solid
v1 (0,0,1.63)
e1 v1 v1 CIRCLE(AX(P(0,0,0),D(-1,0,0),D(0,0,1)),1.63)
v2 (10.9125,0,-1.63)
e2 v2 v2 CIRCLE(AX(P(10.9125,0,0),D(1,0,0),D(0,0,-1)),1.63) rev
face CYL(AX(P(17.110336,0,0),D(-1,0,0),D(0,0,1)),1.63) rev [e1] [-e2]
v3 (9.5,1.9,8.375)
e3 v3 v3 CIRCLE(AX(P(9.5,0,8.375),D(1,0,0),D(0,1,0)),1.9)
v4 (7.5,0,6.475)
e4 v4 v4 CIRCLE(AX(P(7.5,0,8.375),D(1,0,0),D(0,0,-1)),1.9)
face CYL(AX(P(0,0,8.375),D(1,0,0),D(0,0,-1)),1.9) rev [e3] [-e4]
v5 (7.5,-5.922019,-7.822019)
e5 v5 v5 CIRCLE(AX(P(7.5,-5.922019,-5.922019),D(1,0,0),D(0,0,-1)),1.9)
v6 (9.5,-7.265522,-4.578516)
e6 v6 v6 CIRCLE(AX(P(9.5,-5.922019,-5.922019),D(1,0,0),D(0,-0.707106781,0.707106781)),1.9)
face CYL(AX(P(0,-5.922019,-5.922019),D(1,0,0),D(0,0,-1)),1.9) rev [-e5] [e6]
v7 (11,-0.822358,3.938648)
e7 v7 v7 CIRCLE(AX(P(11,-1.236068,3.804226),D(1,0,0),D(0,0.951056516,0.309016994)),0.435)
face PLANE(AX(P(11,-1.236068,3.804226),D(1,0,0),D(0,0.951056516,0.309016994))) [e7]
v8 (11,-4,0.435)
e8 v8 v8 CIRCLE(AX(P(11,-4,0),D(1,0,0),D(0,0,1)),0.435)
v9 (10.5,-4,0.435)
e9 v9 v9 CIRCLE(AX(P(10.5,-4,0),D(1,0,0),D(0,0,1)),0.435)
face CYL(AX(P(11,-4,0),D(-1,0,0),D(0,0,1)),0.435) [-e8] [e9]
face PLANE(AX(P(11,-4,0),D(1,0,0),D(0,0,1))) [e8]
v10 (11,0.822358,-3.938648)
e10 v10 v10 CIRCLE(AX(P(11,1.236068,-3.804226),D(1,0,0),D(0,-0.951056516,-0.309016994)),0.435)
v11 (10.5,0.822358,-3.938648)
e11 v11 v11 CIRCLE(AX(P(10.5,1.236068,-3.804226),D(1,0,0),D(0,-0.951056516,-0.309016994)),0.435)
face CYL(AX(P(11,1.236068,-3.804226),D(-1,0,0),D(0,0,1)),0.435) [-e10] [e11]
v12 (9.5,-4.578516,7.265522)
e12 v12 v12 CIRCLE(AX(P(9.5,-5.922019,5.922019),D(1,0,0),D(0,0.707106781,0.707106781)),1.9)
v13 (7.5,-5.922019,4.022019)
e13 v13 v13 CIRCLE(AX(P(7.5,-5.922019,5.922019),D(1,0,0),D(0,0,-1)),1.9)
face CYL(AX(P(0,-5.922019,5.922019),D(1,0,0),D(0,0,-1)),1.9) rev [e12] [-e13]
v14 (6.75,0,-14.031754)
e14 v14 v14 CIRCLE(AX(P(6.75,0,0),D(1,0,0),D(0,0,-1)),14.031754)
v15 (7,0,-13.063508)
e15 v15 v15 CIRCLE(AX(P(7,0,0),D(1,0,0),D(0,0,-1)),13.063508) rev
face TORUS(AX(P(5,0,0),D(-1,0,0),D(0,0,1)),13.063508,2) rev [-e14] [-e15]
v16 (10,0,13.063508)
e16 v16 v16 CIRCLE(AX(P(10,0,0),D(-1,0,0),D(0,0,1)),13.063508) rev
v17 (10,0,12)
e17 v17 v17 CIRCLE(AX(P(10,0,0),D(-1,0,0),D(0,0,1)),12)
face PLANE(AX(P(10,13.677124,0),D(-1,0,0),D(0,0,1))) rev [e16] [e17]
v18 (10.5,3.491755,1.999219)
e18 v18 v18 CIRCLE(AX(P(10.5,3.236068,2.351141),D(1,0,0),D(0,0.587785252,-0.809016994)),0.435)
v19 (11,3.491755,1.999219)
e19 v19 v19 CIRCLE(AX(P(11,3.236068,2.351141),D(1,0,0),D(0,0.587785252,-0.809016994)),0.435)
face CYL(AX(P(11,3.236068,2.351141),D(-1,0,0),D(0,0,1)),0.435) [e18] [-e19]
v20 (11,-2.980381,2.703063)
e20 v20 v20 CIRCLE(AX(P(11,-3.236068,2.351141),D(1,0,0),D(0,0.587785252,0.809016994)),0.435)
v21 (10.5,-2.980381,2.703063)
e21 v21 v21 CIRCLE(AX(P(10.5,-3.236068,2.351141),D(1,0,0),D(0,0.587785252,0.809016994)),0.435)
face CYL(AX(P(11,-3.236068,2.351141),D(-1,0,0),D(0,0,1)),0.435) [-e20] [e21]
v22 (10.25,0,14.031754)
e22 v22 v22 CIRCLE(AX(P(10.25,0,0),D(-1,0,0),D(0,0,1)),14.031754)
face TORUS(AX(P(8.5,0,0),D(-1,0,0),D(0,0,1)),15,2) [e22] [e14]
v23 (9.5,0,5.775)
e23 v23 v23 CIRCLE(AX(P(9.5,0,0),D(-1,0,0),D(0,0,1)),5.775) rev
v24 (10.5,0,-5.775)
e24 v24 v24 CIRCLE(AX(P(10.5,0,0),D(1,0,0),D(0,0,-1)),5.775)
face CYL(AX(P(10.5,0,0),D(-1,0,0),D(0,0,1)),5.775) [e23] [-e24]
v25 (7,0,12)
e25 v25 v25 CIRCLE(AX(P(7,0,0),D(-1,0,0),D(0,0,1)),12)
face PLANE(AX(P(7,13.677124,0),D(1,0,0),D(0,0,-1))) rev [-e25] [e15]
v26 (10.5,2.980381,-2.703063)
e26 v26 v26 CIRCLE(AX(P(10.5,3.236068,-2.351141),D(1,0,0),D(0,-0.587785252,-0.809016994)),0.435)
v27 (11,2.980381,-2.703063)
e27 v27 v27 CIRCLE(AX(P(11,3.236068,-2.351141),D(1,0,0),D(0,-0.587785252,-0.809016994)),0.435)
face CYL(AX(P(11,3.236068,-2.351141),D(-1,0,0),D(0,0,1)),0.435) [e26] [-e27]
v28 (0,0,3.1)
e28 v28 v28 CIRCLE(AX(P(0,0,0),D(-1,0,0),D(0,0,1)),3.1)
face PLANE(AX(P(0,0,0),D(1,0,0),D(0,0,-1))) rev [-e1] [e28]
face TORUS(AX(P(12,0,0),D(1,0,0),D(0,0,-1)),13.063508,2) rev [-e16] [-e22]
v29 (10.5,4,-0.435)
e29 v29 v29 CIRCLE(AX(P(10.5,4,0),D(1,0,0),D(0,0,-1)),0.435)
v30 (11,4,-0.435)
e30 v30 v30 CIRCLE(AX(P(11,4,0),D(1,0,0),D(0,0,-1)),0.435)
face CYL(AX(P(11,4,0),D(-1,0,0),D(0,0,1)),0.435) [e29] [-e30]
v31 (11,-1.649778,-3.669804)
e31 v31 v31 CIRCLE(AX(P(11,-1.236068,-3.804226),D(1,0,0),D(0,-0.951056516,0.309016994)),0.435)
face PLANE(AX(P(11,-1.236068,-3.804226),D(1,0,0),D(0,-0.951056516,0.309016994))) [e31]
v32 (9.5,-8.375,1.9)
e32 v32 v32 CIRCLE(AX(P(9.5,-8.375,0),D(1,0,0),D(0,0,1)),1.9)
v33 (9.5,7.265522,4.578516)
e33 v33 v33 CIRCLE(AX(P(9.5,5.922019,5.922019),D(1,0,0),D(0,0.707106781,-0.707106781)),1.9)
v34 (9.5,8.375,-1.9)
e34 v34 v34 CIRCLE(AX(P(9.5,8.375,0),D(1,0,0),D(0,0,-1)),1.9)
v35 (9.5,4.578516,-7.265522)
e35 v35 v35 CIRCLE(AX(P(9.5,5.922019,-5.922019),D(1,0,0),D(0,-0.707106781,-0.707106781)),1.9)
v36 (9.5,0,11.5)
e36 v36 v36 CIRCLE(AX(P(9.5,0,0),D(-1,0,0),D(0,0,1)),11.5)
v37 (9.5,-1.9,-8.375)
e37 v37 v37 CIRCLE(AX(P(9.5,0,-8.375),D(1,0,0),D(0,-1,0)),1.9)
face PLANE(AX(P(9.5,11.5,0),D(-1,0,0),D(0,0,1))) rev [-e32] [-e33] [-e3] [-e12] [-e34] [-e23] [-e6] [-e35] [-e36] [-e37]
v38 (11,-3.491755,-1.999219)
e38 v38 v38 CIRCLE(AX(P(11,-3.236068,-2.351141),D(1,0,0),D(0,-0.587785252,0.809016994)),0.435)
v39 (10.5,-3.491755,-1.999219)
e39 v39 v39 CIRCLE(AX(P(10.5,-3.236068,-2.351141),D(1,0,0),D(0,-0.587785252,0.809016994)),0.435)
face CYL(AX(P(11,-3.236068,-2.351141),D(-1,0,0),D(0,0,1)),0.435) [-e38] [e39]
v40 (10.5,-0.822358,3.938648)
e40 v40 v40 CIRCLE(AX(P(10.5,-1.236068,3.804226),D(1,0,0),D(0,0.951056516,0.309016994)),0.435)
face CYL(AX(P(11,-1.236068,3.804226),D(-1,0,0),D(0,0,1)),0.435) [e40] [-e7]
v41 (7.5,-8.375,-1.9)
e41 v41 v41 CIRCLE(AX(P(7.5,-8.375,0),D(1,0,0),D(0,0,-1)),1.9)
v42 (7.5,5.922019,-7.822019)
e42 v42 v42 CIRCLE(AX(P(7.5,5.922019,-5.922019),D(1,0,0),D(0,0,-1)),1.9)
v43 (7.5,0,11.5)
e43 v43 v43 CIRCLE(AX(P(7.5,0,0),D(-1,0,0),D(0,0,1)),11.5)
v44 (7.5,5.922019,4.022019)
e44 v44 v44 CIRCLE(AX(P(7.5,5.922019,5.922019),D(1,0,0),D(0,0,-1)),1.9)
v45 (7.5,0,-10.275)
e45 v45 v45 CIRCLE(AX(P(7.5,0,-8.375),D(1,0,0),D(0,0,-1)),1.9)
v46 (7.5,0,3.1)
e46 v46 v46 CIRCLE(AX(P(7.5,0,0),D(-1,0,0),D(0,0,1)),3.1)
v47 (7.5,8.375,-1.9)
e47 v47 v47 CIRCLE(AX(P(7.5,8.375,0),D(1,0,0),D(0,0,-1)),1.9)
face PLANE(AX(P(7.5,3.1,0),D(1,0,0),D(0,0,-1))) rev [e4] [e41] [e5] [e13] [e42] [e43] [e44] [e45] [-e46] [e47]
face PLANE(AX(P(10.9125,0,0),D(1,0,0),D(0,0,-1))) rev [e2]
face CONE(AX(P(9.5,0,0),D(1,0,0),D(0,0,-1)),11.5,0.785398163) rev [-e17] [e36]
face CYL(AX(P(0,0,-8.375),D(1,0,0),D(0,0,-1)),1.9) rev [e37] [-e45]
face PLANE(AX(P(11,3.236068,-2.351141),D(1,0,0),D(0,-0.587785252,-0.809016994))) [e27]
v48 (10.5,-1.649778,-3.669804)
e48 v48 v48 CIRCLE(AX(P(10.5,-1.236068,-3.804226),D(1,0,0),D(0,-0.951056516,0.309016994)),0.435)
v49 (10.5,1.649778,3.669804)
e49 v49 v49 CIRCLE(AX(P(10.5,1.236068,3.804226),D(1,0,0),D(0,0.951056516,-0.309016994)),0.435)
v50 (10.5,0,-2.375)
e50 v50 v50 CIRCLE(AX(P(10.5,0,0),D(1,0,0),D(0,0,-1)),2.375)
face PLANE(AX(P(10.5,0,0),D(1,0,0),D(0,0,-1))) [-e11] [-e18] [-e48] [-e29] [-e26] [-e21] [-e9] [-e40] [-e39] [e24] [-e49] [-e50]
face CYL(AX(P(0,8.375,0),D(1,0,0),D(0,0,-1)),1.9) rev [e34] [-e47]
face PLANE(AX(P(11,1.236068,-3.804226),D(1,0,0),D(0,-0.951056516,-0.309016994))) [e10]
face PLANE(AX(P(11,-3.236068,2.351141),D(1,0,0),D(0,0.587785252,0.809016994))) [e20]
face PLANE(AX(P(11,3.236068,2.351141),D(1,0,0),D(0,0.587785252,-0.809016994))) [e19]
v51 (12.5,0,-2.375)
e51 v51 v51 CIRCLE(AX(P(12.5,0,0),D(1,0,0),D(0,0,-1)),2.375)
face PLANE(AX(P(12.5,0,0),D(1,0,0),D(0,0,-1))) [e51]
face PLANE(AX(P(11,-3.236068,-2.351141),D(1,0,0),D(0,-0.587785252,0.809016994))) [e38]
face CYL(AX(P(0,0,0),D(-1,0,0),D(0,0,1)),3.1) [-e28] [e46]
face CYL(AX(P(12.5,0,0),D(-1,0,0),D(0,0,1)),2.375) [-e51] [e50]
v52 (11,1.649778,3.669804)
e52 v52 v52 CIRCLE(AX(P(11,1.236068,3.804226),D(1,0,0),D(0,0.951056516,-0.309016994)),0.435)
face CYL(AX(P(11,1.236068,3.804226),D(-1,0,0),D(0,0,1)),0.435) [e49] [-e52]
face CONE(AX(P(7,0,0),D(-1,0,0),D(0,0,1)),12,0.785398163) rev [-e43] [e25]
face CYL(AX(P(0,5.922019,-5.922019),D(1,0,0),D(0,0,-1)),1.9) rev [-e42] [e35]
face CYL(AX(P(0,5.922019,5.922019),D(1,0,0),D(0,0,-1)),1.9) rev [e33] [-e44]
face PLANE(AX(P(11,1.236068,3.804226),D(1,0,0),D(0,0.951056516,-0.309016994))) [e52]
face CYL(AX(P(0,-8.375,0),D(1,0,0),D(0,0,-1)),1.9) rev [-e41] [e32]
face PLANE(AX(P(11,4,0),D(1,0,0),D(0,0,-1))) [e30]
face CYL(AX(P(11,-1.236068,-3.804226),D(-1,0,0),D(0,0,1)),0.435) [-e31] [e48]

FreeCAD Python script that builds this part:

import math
import FreeCAD as App
import Part
import Sketcher


def edges_at(feature, points):
    """Names of the edges that pass closest to the given points."""
    edges = feature.Shape.Edges
    near = lambda p: min(range(len(edges)), key=lambda i: edges[i].distToShape(Part.Vertex(*p))[0])
    return sorted({f"Edge{near(p) + 1}" for p in points})

doc = App.newDocument("Part")
body = doc.addObject("PartDesign::Body", "Body")

# Sketch on XY plane
sketch1 = body.newObject("Sketcher::SketchObject", "Sketch")
sketch1.AttachmentSupport = (doc.getObject("XY_Plane"), [""])
sketch1.MapMode = "FlatFace"
sketch1.addGeometry([
    Part.LineSegment(App.Vector(0, 0, 0), App.Vector(9.5, 0, 0)),  # 0
    Part.LineSegment(App.Vector(9.5, 0, 0), App.Vector(9.5, 11.5, 0)),  # 1
    Part.LineSegment(App.Vector(9.5, 11.5, 0), App.Vector(10, 12, 0)),  # 2
    Part.LineSegment(App.Vector(10, 12, 0), App.Vector(10, 13.677124, 0)),  # 3
    Part.ArcOfCircle(Part.Circle(App.Vector(8.5, 15, 0), App.Vector(0, 0, 1), 2), math.radians(-41.409622), math.radians(221.409622)),  # 4
    Part.LineSegment(App.Vector(7, 13.677124, 0), App.Vector(7, 12, 0)),  # 5
    Part.LineSegment(App.Vector(7, 12, 0), App.Vector(7.5, 11.5, 0)),  # 6
    Part.LineSegment(App.Vector(7.5, 11.5, 0), App.Vector(7.5, 3.1, 0)),  # 7
    Part.LineSegment(App.Vector(7.5, 3.1, 0), App.Vector(0, 3.1, 0)),  # 8
    Part.LineSegment(App.Vector(0, 3.1, 0), App.Vector(0, 0, 0)),  # 9
], False)
sketch1.addConstraint([
    Sketcher.Constraint("Coincident", 0, 2, 1, 1),
    Sketcher.Constraint("Coincident", 1, 2, 2, 1),
    Sketcher.Constraint("Coincident", 2, 2, 3, 1),
    Sketcher.Constraint("Coincident", 3, 2, 4, 1),
    Sketcher.Constraint("Coincident", 4, 2, 5, 1),
    Sketcher.Constraint("Coincident", 5, 2, 6, 1),
    Sketcher.Constraint("Coincident", 6, 2, 7, 1),
    Sketcher.Constraint("Coincident", 7, 2, 8, 1),
    Sketcher.Constraint("Coincident", 8, 2, 9, 1),
    Sketcher.Constraint("Coincident", 9, 2, 0, 1),
    Sketcher.Constraint("Horizontal", 0),
    Sketcher.Constraint("Vertical", 1),
    Sketcher.Constraint("Vertical", 3),
    Sketcher.Constraint("Vertical", 5),
    Sketcher.Constraint("Vertical", 7),
    Sketcher.Constraint("Horizontal", 8),
    Sketcher.Constraint("Vertical", 9),
    Sketcher.Constraint("Coincident", 9, 2, -1, 1),
    Sketcher.Constraint("Perpendicular", 2, 6),
    Sketcher.Constraint("Horizontal", 3, 2, 4, 2),
    Sketcher.Constraint("Horizontal", 2, 2, 5, 2),
    Sketcher.Constraint("Horizontal", 1, 2, 6, 2),
    Sketcher.Constraint("Equal", 2, 6),
    Sketcher.Constraint("Radius", 4, 2.0),
    Sketcher.Constraint("DistanceX", 0, 1, 0, 2, 9.5),
    Sketcher.Constraint("DistanceX", 8, 2, 8, 1, 7.5),
    Sketcher.Constraint("DistanceY", 1, 1, 1, 2, 11.5),
    Sketcher.Constraint("DistanceY", 7, 2, 7, 1, 8.4),
    Sketcher.Constraint("DistanceY", -1, 1, 4, 3, 15.0),
    Sketcher.Constraint("DistanceX", -1, 1, 2, 2, 10.0),
])
revolution = body.newObject("PartDesign::Revolution", "Revolution")
revolution.Profile = sketch1
revolution.ReferenceAxis = (sketch1, ["H_Axis"])
revolution.Angle = 360
doc.recompute()

fillet = body.newObject("PartDesign::Fillet", "Fillet")
fillet.Base = (revolution, edges_at(revolution, [(7, 0, -13.677), (10, 0, -13.677)]))
fillet.Radius = 2

# Sketch on YZ plane
sketch2 = body.newObject("Sketcher::SketchObject", "Sketch001")
sketch2.AttachmentSupport = (doc.getObject("YZ_Plane"), [""])
sketch2.MapMode = "FlatFace"
sketch2.AttachmentOffset = App.Placement(App.Vector(0, 0, 9.5), App.Rotation())
sketch2.addGeometry(Part.Circle(App.Vector(0, 0, 0), App.Vector(0, 0, 1), 5.775), False)
sketch2.addConstraint([
    Sketcher.Constraint("Coincident", 0, 3, -1, 1),
    Sketcher.Constraint("Diameter", 0, 11.55),
])
pad1 = body.newObject("PartDesign::Pad", "Pad")
pad1.Profile = sketch2
pad1.Length = 1

# Sketch on YZ plane
sketch3 = body.newObject("Sketcher::SketchObject", "Sketch002")
sketch3.AttachmentSupport = (doc.getObject("YZ_Plane"), [""])
sketch3.MapMode = "FlatFace"
sketch3.AttachmentOffset = App.Placement(App.Vector(0, 0, 10.5), App.Rotation())
sketch3.addGeometry(Part.Circle(App.Vector(0, 0, 0), App.Vector(0, 0, 1), 2.375), False)
sketch3.addConstraint([
    Sketcher.Constraint("Coincident", 0, 3, -1, 1),
    Sketcher.Constraint("Diameter", 0, 4.75),
])
pad2 = body.newObject("PartDesign::Pad", "Pad001")
pad2.Profile = sketch3
pad2.Length = 2

# Sketch on YZ plane
sketch4 = body.newObject("Sketcher::SketchObject", "Sketch003")
sketch4.AttachmentSupport = (doc.getObject("YZ_Plane"), [""])
sketch4.MapMode = "FlatFace"
sketch4.AttachmentOffset = App.Placement(App.Vector(0, 0, 10.5), App.Rotation())
sketch4.addGeometry(Part.Circle(App.Vector(4, 0, 0), App.Vector(0, 0, 1), 0.435), False)
sketch4.addConstraint([
    Sketcher.Constraint("PointOnObject", 0, 3, -1),
    Sketcher.Constraint("Diameter", 0, 0.87),
    Sketcher.Constraint("DistanceX", -1, 1, 0, 3, 4.0),
])
pad3 = body.newObject("PartDesign::Pad", "Pad002")
pad3.Profile = sketch4
pad3.Length = 0.5
doc.recompute()

polarpattern = body.newObject("PartDesign::PolarPattern", "PolarPattern")
polarpattern.Originals = [pad3]
polarpattern.Axis = (doc.getObject("X_Axis"), [""])
polarpattern.Angle = 360
polarpattern.Occurrences = 10
body.Tip = polarpattern

# Sketch on YZ plane
sketch5 = body.newObject("Sketcher::SketchObject", "Sketch004")
sketch5.AttachmentSupport = (doc.getObject("YZ_Plane"), [""])
sketch5.MapMode = "FlatFace"
sketch5.AttachmentOffset = App.Placement(App.Vector(0, 0, 9.5), App.Rotation())
sketch5.addGeometry(Part.Circle(App.Vector(8.375, 0, 0), App.Vector(0, 0, 1), 1.9), False)
sketch5.addConstraint([
    Sketcher.Constraint("PointOnObject", 0, 3, -1),
    Sketcher.Constraint("Diameter", 0, 3.8),
    Sketcher.Constraint("DistanceX", -1, 1, 0, 3, 8.375),
])
pocket1 = body.newObject("PartDesign::Pocket", "Pocket")
pocket1.Profile = sketch5
pocket1.Type = "ThroughAll"
doc.recompute()

polarpattern2 = body.newObject("PartDesign::PolarPattern", "PolarPattern001")
polarpattern2.Originals = [pocket1]
polarpattern2.Axis = (doc.getObject("X_Axis"), [""])
polarpattern2.Angle = 360
polarpattern2.Occurrences = 8
body.Tip = polarpattern2

# Sketch on YZ plane
sketch6 = body.newObject("Sketcher::SketchObject", "Sketch005")
sketch6.AttachmentSupport = (doc.getObject("YZ_Plane"), [""])
sketch6.MapMode = "FlatFace"
sketch6.addGeometry(Part.Circle(App.Vector(0, 0, 0), App.Vector(0, 0, 1), 1.63), False)
sketch6.addConstraint([
    Sketcher.Constraint("Coincident", 0, 3, -1, 1),
    Sketcher.Constraint("Diameter", 0, 3.26),
])
pocket2 = body.newObject("PartDesign::Pocket", "Pocket001")
pocket2.Profile = sketch6
pocket2.Length = 10.9125
pocket2.Reversed = True

doc.recompute()
